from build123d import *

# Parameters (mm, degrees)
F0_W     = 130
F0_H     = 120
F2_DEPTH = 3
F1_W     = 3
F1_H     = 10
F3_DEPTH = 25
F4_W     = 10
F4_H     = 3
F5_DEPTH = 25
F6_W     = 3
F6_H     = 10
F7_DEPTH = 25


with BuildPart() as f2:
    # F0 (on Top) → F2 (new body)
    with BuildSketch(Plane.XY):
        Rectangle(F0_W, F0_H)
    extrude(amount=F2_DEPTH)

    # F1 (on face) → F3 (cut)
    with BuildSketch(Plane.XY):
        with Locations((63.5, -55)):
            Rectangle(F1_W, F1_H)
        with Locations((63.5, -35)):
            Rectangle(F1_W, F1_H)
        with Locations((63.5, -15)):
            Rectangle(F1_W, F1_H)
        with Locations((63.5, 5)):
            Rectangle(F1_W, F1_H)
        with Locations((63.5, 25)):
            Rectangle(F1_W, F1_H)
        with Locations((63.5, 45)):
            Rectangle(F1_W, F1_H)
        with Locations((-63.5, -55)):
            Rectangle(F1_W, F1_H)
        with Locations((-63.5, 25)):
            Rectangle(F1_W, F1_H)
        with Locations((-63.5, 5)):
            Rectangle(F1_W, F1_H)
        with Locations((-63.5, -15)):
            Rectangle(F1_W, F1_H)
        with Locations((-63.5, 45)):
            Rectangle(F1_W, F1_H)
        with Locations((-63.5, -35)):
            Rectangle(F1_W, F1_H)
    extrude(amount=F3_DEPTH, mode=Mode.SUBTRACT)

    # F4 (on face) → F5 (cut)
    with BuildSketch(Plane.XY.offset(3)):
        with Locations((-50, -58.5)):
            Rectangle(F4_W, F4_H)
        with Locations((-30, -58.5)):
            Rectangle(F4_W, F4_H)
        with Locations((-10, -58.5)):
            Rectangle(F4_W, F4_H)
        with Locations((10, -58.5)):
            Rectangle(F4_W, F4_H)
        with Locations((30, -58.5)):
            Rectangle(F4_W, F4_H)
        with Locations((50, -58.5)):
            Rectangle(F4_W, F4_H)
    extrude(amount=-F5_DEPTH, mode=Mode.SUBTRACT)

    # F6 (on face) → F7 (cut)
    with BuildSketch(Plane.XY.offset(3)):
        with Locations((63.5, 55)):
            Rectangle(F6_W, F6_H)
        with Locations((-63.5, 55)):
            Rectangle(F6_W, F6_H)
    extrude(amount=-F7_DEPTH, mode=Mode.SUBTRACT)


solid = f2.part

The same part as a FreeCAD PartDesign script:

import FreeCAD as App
import Part
import Sketcher

V = App.Vector
Q = App.Units.Quantity

doc = App.newDocument("Part")
body = doc.addObject("PartDesign::Body", "Body")

# Sketch on XY plane
sketch1 = body.newObject("Sketcher::SketchObject", "Sketch")
sketch1.AttachmentSupport = (doc.getObject("XY_Plane"), [""])
sketch1.MapMode = "FlatFace"
sketch1.addGeometry([
    Part.LineSegment(V(-65, 60, 0), V(-65, -60, 0)),
    Part.LineSegment(V(-65, -60, 0), V(65, -60, 0)),
    Part.LineSegment(V(65, -60, 0), V(65, 60, 0)),
    Part.LineSegment(V(65, 60, 0), V(-65, 60, 0)),
], False)
sketch1.addConstraint([
    Sketcher.Constraint("Coincident", 0, 2, 1, 1),
    Sketcher.Constraint("Coincident", 1, 2, 2, 1),
    Sketcher.Constraint("Coincident", 2, 2, 3, 1),
    Sketcher.Constraint("Coincident", 3, 2, 0, 1),
    Sketcher.Constraint("Vertical", 0),
    Sketcher.Constraint("Horizontal", 1),
    Sketcher.Constraint("Vertical", 2),
    Sketcher.Constraint("Horizontal", 3),
    Sketcher.Constraint("Symmetric", 0, 2, 2, 2, -1, 1),
    Sketcher.Constraint("DistanceX", 1, 1, 1, 2, Q("130 mm")),
    Sketcher.Constraint("DistanceY", 0, 2, 0, 1, Q("120 mm")),
])
pad1 = body.newObject("PartDesign::Pad", "Pad")
pad1.Profile = sketch1
pad1.Length = 3

# Sketch on XY plane
sketch2 = body.newObject("Sketcher::SketchObject", "Sketch001")
sketch2.AttachmentSupport = (doc.getObject("XY_Plane"), [""])
sketch2.MapMode = "FlatFace"
sketch2.addGeometry([
    Part.LineSegment(V(62, -50, 0), V(62, -60, 0)),  # 0
    Part.LineSegment(V(62, -60, 0), V(65, -60, 0)),  # 1
    Part.LineSegment(V(65, -60, 0), V(65, -50, 0)),  # 2
    Part.LineSegment(V(65, -50, 0), V(62, -50, 0)),  # 3
    Part.LineSegment(V(62, -30, 0), V(62, -40, 0)),  # 4
    Part.LineSegment(V(62, -40, 0), V(65, -40, 0)),  # 5
    Part.LineSegment(V(65, -40, 0), V(65, -30, 0)),  # 6
    Part.LineSegment(V(65, -30, 0), V(62, -30, 0)),  # 7
    Part.LineSegment(V(62, -10, 0), V(62, -20, 0)),  # 8
    Part.LineSegment(V(62, -20, 0), V(65, -20, 0)),  # 9
    Part.LineSegment(V(65, -20, 0), V(65, -10, 0)),  # 10
    Part.LineSegment(V(65, -10, 0), V(62, -10, 0)),  # 11
    Part.LineSegment(V(62, 10, 0), V(62, 0, 0)),  # 12
    Part.LineSegment(V(62, 0, 0), V(65, 0, 0)),  # 13
    Part.LineSegment(V(65, 0, 0), V(65, 10, 0)),  # 14
    Part.LineSegment(V(65, 10, 0), V(62, 10, 0)),  # 15
    Part.LineSegment(V(62, 30, 0), V(62, 20, 0)),  # 16
    Part.LineSegment(V(62, 20, 0), V(65, 20, 0)),  # 17
    Part.LineSegment(V(65, 20, 0), V(65, 30, 0)),  # 18
    Part.LineSegment(V(65, 30, 0), V(62, 30, 0)),  # 19
    Part.LineSegment(V(62, 50, 0), V(62, 40, 0)),  # 20
    Part.LineSegment(V(62, 40, 0), V(65, 40, 0)),  # 21
    Part.LineSegment(V(65, 40, 0), V(65, 50, 0)),  # 22
    Part.LineSegment(V(65, 50, 0), V(62, 50, 0)),  # 23
    Part.LineSegment(V(-65, -50, 0), V(-65, -60, 0)),  # 24
    Part.LineSegment(V(-65, -60, 0), V(-62, -60, 0)),  # 25
    Part.LineSegment(V(-62, -60, 0), V(-62, -50, 0)),  # 26
    Part.LineSegment(V(-62, -50, 0), V(-65, -50, 0)),  # 27
    Part.LineSegment(V(-65, 30, 0), V(-65, 20, 0)),  # 28
    Part.LineSegment(V(-65, 20, 0), V(-62, 20, 0)),  # 29
    Part.LineSegment(V(-62, 20, 0), V(-62, 30, 0)),  # 30
    Part.LineSegment(V(-62, 30, 0), V(-65, 30, 0)),  # 31
    Part.LineSegment(V(-65, 10, 0), V(-65, 0, 0)),  # 32
    Part.LineSegment(V(-65, 0, 0), V(-62, 0, 0)),  # 33
    Part.LineSegment(V(-62, 0, 0), V(-62, 10, 0)),  # 34
    Part.LineSegment(V(-62, 10, 0), V(-65, 10, 0)),  # 35
    Part.LineSegment(V(-65, -10, 0), V(-65, -20, 0)),  # 36
    Part.LineSegment(V(-65, -20, 0), V(-62, -20, 0)),  # 37
    Part.LineSegment(V(-62, -20, 0), V(-62, -10, 0)),  # 38
    Part.LineSegment(V(-62, -10, 0), V(-65, -10, 0)),  # 39
    Part.LineSegment(V(-65, 50, 0), V(-65, 40, 0)),  # 40
    Part.LineSegment(V(-65, 40, 0), V(-62, 40, 0)),  # 41
    Part.LineSegment(V(-62, 40, 0), V(-62, 50, 0)),  # 42
    Part.LineSegment(V(-62, 50, 0), V(-65, 50, 0)),  # 43
    Part.LineSegment(V(-65, -30, 0), V(-65, -40, 0)),  # 44
    Part.LineSegment(V(-65, -40, 0), V(-62, -40, 0)),  # 45
    Part.LineSegment(V(-62, -40, 0), V(-62, -30, 0)),  # 46
    Part.LineSegment(V(-62, -30, 0), V(-65, -30, 0)),  # 47
], False)
sketch2.addConstraint([
    Sketcher.Constraint("Coincident", 0, 2, 1, 1),
    Sketcher.Constraint("Coincident", 1, 2, 2, 1),
    Sketcher.Constraint("Coincident", 2, 2, 3, 1),
    Sketcher.Constraint("Coincident", 3, 2, 0, 1),
    Sketcher.Constraint("Coincident", 4, 2, 5, 1),
    Sketcher.Constraint("Coincident", 5, 2, 6, 1),
    Sketcher.Constraint("Coincident", 6, 2, 7, 1),
    Sketcher.Constraint("Coincident", 7, 2, 4, 1),
    Sketcher.Constraint("Coincident", 8, 2, 9, 1),
    Sketcher.Constraint("Coincident", 9, 2, 10, 1),
    Sketcher.Constraint("Coincident", 10, 2, 11, 1),
    Sketcher.Constraint("Coincident", 11, 2, 8, 1),
    Sketcher.Constraint("Coincident", 12, 2, 13, 1),
    Sketcher.Constraint("Coincident", 13, 2, 14, 1),
    Sketcher.Constraint("Coincident", 14, 2, 15, 1),
    Sketcher.Constraint("Coincident", 15, 2, 12, 1),
    Sketcher.Constraint("Coincident", 16, 2, 17, 1),
    Sketcher.Constraint("Coincident", 17, 2, 18, 1),
    Sketcher.Constraint("Coincident", 18, 2, 19, 1),
    Sketcher.Constraint("Coincident", 19, 2, 16, 1),
    Sketcher.Constraint("Coincident", 20, 2, 21, 1),
    Sketcher.Constraint("Coincident", 21, 2, 22, 1),
    Sketcher.Constraint("Coincident", 22, 2, 23, 1),
    Sketcher.Constraint("Coincident", 23, 2, 20, 1),
    Sketcher.Constraint("Coincident", 24, 2, 25, 1),
    Sketcher.Constraint("Coincident", 25, 2, 26, 1),
    Sketcher.Constraint("Coincident", 26, 2, 27, 1),
    Sketcher.Constraint("Coincident", 27, 2, 24, 1),
    Sketcher.Constraint("Coincident", 28, 2, 29, 1),
    Sketcher.Constraint("Coincident", 29, 2, 30, 1),
    Sketcher.Constraint("Coincident", 30, 2, 31, 1),
    Sketcher.Constraint("Coincident", 31, 2, 28, 1),
    Sketcher.Constraint("Coincident", 32, 2, 33, 1),
    Sketcher.Constraint("Coincident", 33, 2, 34, 1),
    Sketcher.Constraint("Coincident", 34, 2, 35, 1),
    Sketcher.Constraint("Coincident", 35, 2, 32, 1),
    Sketcher.Constraint("Coincident", 36, 2, 37, 1),
    Sketcher.Constraint("Coincident", 37, 2, 38, 1),
    Sketcher.Constraint("Coincident", 38, 2, 39, 1),
    Sketcher.Constraint("Coincident", 39, 2, 36, 1),
    Sketcher.Constraint("Coincident", 40, 2, 41, 1),
    Sketcher.Constraint("Coincident", 41, 2, 42, 1),
    Sketcher.Constraint("Coincident", 42, 2, 43, 1),
    Sketcher.Constraint("Coincident", 43, 2, 40, 1),
    Sketcher.Constraint("Coincident", 44, 2, 45, 1),
    Sketcher.Constraint("Coincident", 45, 2, 46, 1),
    Sketcher.Constraint("Coincident", 46, 2, 47, 1),
    Sketcher.Constraint("Coincident", 47, 2, 44, 1),
    Sketcher.Constraint("Vertical", 0),
    Sketcher.Constraint("Horizontal", 1),
    Sketcher.Constraint("Vertical", 2),
    Sketcher.Constraint("Horizontal", 3),
    Sketcher.Constraint("Vertical", 4),
    Sketcher.Constraint("Horizontal", 5),
    Sketcher.Constraint("Vertical", 6),
    Sketcher.Constraint("Horizontal", 7),
    Sketcher.Constraint("Vertical", 8),
    Sketcher.Constraint("Horizontal", 9),
    Sketcher.Constraint("Vertical", 10),
    Sketcher.Constraint("Horizontal", 11),
    Sketcher.Constraint("Vertical", 12),
    Sketcher.Constraint("Horizontal", 13),
    Sketcher.Constraint("Vertical", 14),
    Sketcher.Constraint("Horizontal", 15),
    Sketcher.Constraint("Vertical", 16),
    Sketcher.Constraint("Horizontal", 17),
    Sketcher.Constraint("Vertical", 18),
    Sketcher.Constraint("Horizontal", 19),
    Sketcher.Constraint("Vertical", 20),
    Sketcher.Constraint("Horizontal", 21),
    Sketcher.Constraint("Vertical", 22),
    Sketcher.Constraint("Horizontal", 23),
    Sketcher.Constraint("Vertical", 24),
    Sketcher.Constraint("Horizontal", 25),
    Sketcher.Constraint("Vertical", 26),
    Sketcher.Constraint("Horizontal", 27),
    Sketcher.Constraint("Vertical", 28),
    Sketcher.Constraint("Horizontal", 29),
    Sketcher.Constraint("Vertical", 30),
    Sketcher.Constraint("Horizontal", 31),
    Sketcher.Constraint("Vertical", 32),
    Sketcher.Constraint("Horizontal", 33),
    Sketcher.Constraint("Vertical", 34),
    Sketcher.Constraint("Horizontal", 35),
    Sketcher.Constraint("Vertical", 36),
    Sketcher.Constraint("Horizontal", 37),
    Sketcher.Constraint("Vertical", 38),
    Sketcher.Constraint("Horizontal", 39),
    Sketcher.Constraint("Vertical", 40),
    Sketcher.Constraint("Horizontal", 41),
    Sketcher.Constraint("Vertical", 42),
    Sketcher.Constraint("Horizontal", 43),
    Sketcher.Constraint("Vertical", 44),
    Sketcher.Constraint("Horizontal", 45),
    Sketcher.Constraint("Vertical", 46),
    Sketcher.Constraint("Horizontal", 47),
    Sketcher.Constraint("Symmetric", 23, 2, 26, 2, -1, 1),
    Sketcher.Constraint("Symmetric", 9, 2, 28, 2, -1, 1),
    Sketcher.Constraint("Symmetric", 7, 2, 30, 2, -1, 1),
    Sketcher.Constraint("Symmetric", 13, 2, 32, 2, -1, 1),
    Sketcher.Constraint("Symmetric", 11, 2, 34, 2, -1, 1),
    Sketcher.Constraint("Symmetric", 17, 2, 36, 2, -1, 1),
    Sketcher.Constraint("Symmetric", 15, 2, 38, 2, -1, 1),
    Sketcher.Constraint("Symmetric", 5, 2, 40, 2, -1, 1),
    Sketcher.Constraint("Symmetric", 3, 2, 42, 2, -1, 1),
    Sketcher.Constraint("Symmetric", 21, 2, 44, 2, -1, 1),
    Sketcher.Constraint("Symmetric", 19, 2, 46, 2, -1, 1),
    Sketcher.Constraint("Symmetric", 1, 2, 24, 2, -2),
    Sketcher.Constraint("Symmetric", 3, 2, 26, 2, -2),
    Sketcher.Constraint("Symmetric", 17, 2, 28, 2, -2),
    Sketcher.Constraint("Symmetric", 19, 2, 30, 2, -2),
    Sketcher.Constraint("Symmetric", 12, 2, 33, 2, -2),
    Sketcher.Constraint("Symmetric", 21, 2, 40, 2, -2),
    Sketcher.Constraint("Symmetric", 10, 2, 14, 2, -1),
    Sketcher.Constraint("Vertical", 3, 2, 4, 2),
    Sketcher.Constraint("Vertical", 2, 2, 5, 2),
    Sketcher.Constraint("Vertical", 7, 2, 8, 2),
    Sketcher.Constraint("Vertical", 6, 2, 9, 2),
    Sketcher.Constraint("Equal", 2, 4),
    Sketcher.Constraint("Equal", 6, 8),
    Sketcher.Constraint("Equal", 10, 12),
    Sketcher.Constraint("Equal", 14, 16),
    Sketcher.Constraint("Equal", 18, 20),
    Sketcher.Constraint("DistanceX", 1, 1, 1, 2, Q("3 mm")),
    Sketcher.Constraint("DistanceY", 0, 2, 0, 1, Q("10 mm")),
    Sketcher.Constraint("DistanceX", -1, 1, 0, 2, Q("62 mm")),
])
pocket1 = body.newObject("PartDesign::Pocket", "Pocket")
pocket1.Profile = sketch2
pocket1.Length = 25
pocket1.Reversed = True

# Sketch on XY plane
sketch3 = body.newObject("Sketcher::SketchObject", "Sketch002")
sketch3.AttachmentSupport = (doc.getObject("XY_Plane"), [""])
sketch3.MapMode = "FlatFace"
sketch3.AttachmentOffset = App.Placement(V(0, 0, 3), App.Rotation())
sketch3.addGeometry([
    Part.LineSegment(V(-55, -57, 0), V(-55, -60, 0)),  # 0
    Part.LineSegment(V(-55, -60, 0), V(-45, -60, 0)),  # 1
    Part.LineSegment(V(-45, -60, 0), V(-45, -57, 0)),  # 2
    Part.LineSegment(V(-45, -57, 0), V(-55, -57, 0)),  # 3
    Part.LineSegment(V(-35, -57, 0), V(-35, -60, 0)),  # 4
    Part.LineSegment(V(-35, -60, 0), V(-25, -60, 0)),  # 5
    Part.LineSegment(V(-25, -60, 0), V(-25, -57, 0)),  # 6
    Part.LineSegment(V(-25, -57, 0), V(-35, -57, 0)),  # 7
    Part.LineSegment(V(-15, -57, 0), V(-15, -60, 0)),  # 8
    Part.LineSegment(V(-15, -60, 0), V(-5, -60, 0)),  # 9
    Part.LineSegment(V(-5, -60, 0), V(-5, -57, 0)),  # 10
    Part.LineSegment(V(-5, -57, 0), V(-15, -57, 0)),  # 11
    Part.LineSegment(V(5, -57, 0), V(5, -60, 0)),  # 12
    Part.LineSegment(V(5, -60, 0), V(15, -60, 0)),  # 13
    Part.LineSegment(V(15, -60, 0), V(15, -57, 0)),  # 14
    Part.LineSegment(V(15, -57, 0), V(5, -57, 0)),  # 15
    Part.LineSegment(V(25, -57, 0), V(25, -60, 0)),  # 16
    Part.LineSegment(V(25, -60, 0), V(35, -60, 0)),  # 17
    Part.LineSegment(V(35, -60, 0), V(35, -57, 0)),  # 18
    Part.LineSegment(V(35, -57, 0), V(25, -57, 0)),  # 19
    Part.LineSegment(V(45, -57, 0), V(45, -60, 0)),  # 20
    Part.LineSegment(V(45, -60, 0), V(55, -60, 0)),  # 21
    Part.LineSegment(V(55, -60, 0), V(55, -57, 0)),  # 22
    Part.LineSegment(V(55, -57, 0), V(45, -57, 0)),  # 23
], False)
sketch3.addConstraint([
    Sketcher.Constraint("Coincident", 0, 2, 1, 1),
    Sketcher.Constraint("Coincident", 1, 2, 2, 1),
    Sketcher.Constraint("Coincident", 2, 2, 3, 1),
    Sketcher.Constraint("Coincident", 3, 2, 0, 1),
    Sketcher.Constraint("Coincident", 4, 2, 5, 1),
    Sketcher.Constraint("Coincident", 5, 2, 6, 1),
    Sketcher.Constraint("Coincident", 6, 2, 7, 1),
    Sketcher.Constraint("Coincident", 7, 2, 4, 1),
    Sketcher.Constraint("Coincident", 8, 2, 9, 1),
    Sketcher.Constraint("Coincident", 9, 2, 10, 1),
    Sketcher.Constraint("Coincident", 10, 2, 11, 1),
    Sketcher.Constraint("Coincident", 11, 2, 8, 1),
    Sketcher.Constraint("Coincident", 12, 2, 13, 1),
    Sketcher.Constraint("Coincident", 13, 2, 14, 1),
    Sketcher.Constraint("Coincident", 14, 2, 15, 1),
    Sketcher.Constraint("Coincident", 15, 2, 12, 1),
    Sketcher.Constraint("Coincident", 16, 2, 17, 1),
    Sketcher.Constraint("Coincident", 17, 2, 18, 1),
    Sketcher.Constraint("Coincident", 18, 2, 19, 1),
    Sketcher.Constraint("Coincident", 19, 2, 16, 1),
    Sketcher.Constraint("Coincident", 20, 2, 21, 1),
    Sketcher.Constraint("Coincident", 21, 2, 22, 1),
    Sketcher.Constraint("Coincident", 22, 2, 23, 1),
    Sketcher.Constraint("Coincident", 23, 2, 20, 1),
    Sketcher.Constraint("Vertical", 0),
    Sketcher.Constraint("Horizontal", 1),
    Sketcher.Constraint("Vertical", 2),
    Sketcher.Constraint("Horizontal", 3),
    Sketcher.Constraint("Vertical", 4),
    Sketcher.Constraint("Horizontal", 5),
    Sketcher.Constraint("Vertical", 6),
    Sketcher.Constraint("Horizontal", 7),
    Sketcher.Constraint("Vertical", 8),
    Sketcher.Constraint("Horizontal", 9),
    Sketcher.Constraint("Vertical", 10),
    Sketcher.Constraint("Horizontal", 11),
    Sketcher.Constraint("Vertical", 12),
    Sketcher.Constraint("Horizontal", 13),
    Sketcher.Constraint("Vertical", 14),
    Sketcher.Constraint("Horizontal", 15),
    Sketcher.Constraint("Vertical", 16),
    Sketcher.Constraint("Horizontal", 17),
    Sketcher.Constraint("Vertical", 18),
    Sketcher.Constraint("Horizontal", 19),
    Sketcher.Constraint("Vertical", 20),
    Sketcher.Constraint("Horizontal", 21),
    Sketcher.Constraint("Vertical", 22),
    Sketcher.Constraint("Horizontal", 23),
    Sketcher.Constraint("Symmetric", 9, 2, 12, 2, -2),
    Sketcher.Constraint("Symmetric", 11, 2, 14, 2, -2),
    Sketcher.Constraint("Symmetric", 5, 2, 16, 2, -2),
    Sketcher.Constraint("Symmetric", 7, 2, 18, 2, -2),
    Sketcher.Constraint("Symmetric", 1, 2, 20, 2, -2),
    Sketcher.Constraint("Symmetric", 3, 2, 22, 2, -2),
    Sketcher.Constraint("Horizontal", 1, 2, 4, 2),
    Sketcher.Constraint("Horizontal", 3, 2, 6, 2),
    Sketcher.Constraint("Horizontal", 5, 2, 8, 2),
    Sketcher.Constraint("Horizontal", 7, 2, 10, 2),
    Sketcher.Constraint("Equal", 3, 5),
    Sketcher.Constraint("Equal", 7, 9),
    Sketcher.Constraint("DistanceX", 1, 1, 1, 2, Q("10 mm")),
    Sketcher.Constraint("DistanceY", 0, 2, 0, 1, Q("3 mm")),
    Sketcher.Constraint("DistanceX", 0, 2, -1, 1, Q("55 mm")),
    Sketcher.Constraint("DistanceY", 0, 2, -1, 1, Q("60 mm")),
    Sketcher.Constraint("DistanceX", 4, 2, -1, 1, Q("35 mm")),
    Sketcher.Constraint("DistanceX", 8, 2, -1, 1, Q("15 mm")),
])
pocket2 = body.newObject("PartDesign::Pocket", "Pocket001")
pocket2.Profile = sketch3
pocket2.Length = 25

# Sketch on XY plane
sketch4 = body.newObject("Sketcher::SketchObject", "Sketch003")
sketch4.AttachmentSupport = (doc.getObject("XY_Plane"), [""])
sketch4.MapMode = "FlatFace"
sketch4.AttachmentOffset = App.Placement(V(0, 0, 3), App.Rotation())
sketch4.addGeometry([
    Part.LineSegment(V(62, 60, 0), V(62, 50, 0)),  # 0
    Part.LineSegment(V(62, 50, 0), V(65, 50, 0)),  # 1
    Part.LineSegment(V(65, 50, 0), V(65, 60, 0)),  # 2
    Part.LineSegment(V(65, 60, 0), V(62, 60, 0)),  # 3
    Part.LineSegment(V(-65, 60, 0), V(-65, 50, 0)),  # 4
    Part.LineSegment(V(-65, 50, 0), V(-62, 50, 0)),  # 5
    Part.LineSegment(V(-62, 50, 0), V(-62, 60, 0)),  # 6
    Part.LineSegment(V(-62, 60, 0), V(-65, 60, 0)),  # 7
], False)
sketch4.addConstraint([
    Sketcher.Constraint("Coincident", 0, 2, 1, 1),
    Sketcher.Constraint("Coincident", 1, 2, 2, 1),
    Sketcher.Constraint("Coincident", 2, 2, 3, 1),
    Sketcher.Constraint("Coincident", 3, 2, 0, 1),
    Sketcher.Constraint("Coincident", 4, 2, 5, 1),
    Sketcher.Constraint("Coincident", 5, 2, 6, 1),
    Sketcher.Constraint("Coincident", 6, 2, 7, 1),
    Sketcher.Constraint("Coincident", 7, 2, 4, 1),
    Sketcher.Constraint("Vertical", 0),
    Sketcher.Constraint("Horizontal", 1),
    Sketcher.Constraint("Vertical", 2),
    Sketcher.Constraint("Horizontal", 3),
    Sketcher.Constraint("Vertical", 4),
    Sketcher.Constraint("Horizontal", 5),
    Sketcher.Constraint("Vertical", 6),
    Sketcher.Constraint("Horizontal", 7),
    Sketcher.Constraint("Symmetric", 1, 2, 4, 2, -2),
    Sketcher.Constraint("Symmetric", 3, 2, 6, 2, -2),
    Sketcher.Constraint("DistanceX", 1, 1, 1, 2, Q("3 mm")),
    Sketcher.Constraint("DistanceY", 0, 2, 0, 1, Q("10 mm")),
    Sketcher.Constraint("DistanceX", -1, 1, 0, 2, Q("62 mm")),
    Sketcher.Constraint("DistanceY", -1, 1, 0, 2, Q("50 mm")),
])
pocket3 = body.newObject("PartDesign::Pocket", "Pocket002")
pocket3.Profile = sketch4
pocket3.Length = 25

doc.recompute()
